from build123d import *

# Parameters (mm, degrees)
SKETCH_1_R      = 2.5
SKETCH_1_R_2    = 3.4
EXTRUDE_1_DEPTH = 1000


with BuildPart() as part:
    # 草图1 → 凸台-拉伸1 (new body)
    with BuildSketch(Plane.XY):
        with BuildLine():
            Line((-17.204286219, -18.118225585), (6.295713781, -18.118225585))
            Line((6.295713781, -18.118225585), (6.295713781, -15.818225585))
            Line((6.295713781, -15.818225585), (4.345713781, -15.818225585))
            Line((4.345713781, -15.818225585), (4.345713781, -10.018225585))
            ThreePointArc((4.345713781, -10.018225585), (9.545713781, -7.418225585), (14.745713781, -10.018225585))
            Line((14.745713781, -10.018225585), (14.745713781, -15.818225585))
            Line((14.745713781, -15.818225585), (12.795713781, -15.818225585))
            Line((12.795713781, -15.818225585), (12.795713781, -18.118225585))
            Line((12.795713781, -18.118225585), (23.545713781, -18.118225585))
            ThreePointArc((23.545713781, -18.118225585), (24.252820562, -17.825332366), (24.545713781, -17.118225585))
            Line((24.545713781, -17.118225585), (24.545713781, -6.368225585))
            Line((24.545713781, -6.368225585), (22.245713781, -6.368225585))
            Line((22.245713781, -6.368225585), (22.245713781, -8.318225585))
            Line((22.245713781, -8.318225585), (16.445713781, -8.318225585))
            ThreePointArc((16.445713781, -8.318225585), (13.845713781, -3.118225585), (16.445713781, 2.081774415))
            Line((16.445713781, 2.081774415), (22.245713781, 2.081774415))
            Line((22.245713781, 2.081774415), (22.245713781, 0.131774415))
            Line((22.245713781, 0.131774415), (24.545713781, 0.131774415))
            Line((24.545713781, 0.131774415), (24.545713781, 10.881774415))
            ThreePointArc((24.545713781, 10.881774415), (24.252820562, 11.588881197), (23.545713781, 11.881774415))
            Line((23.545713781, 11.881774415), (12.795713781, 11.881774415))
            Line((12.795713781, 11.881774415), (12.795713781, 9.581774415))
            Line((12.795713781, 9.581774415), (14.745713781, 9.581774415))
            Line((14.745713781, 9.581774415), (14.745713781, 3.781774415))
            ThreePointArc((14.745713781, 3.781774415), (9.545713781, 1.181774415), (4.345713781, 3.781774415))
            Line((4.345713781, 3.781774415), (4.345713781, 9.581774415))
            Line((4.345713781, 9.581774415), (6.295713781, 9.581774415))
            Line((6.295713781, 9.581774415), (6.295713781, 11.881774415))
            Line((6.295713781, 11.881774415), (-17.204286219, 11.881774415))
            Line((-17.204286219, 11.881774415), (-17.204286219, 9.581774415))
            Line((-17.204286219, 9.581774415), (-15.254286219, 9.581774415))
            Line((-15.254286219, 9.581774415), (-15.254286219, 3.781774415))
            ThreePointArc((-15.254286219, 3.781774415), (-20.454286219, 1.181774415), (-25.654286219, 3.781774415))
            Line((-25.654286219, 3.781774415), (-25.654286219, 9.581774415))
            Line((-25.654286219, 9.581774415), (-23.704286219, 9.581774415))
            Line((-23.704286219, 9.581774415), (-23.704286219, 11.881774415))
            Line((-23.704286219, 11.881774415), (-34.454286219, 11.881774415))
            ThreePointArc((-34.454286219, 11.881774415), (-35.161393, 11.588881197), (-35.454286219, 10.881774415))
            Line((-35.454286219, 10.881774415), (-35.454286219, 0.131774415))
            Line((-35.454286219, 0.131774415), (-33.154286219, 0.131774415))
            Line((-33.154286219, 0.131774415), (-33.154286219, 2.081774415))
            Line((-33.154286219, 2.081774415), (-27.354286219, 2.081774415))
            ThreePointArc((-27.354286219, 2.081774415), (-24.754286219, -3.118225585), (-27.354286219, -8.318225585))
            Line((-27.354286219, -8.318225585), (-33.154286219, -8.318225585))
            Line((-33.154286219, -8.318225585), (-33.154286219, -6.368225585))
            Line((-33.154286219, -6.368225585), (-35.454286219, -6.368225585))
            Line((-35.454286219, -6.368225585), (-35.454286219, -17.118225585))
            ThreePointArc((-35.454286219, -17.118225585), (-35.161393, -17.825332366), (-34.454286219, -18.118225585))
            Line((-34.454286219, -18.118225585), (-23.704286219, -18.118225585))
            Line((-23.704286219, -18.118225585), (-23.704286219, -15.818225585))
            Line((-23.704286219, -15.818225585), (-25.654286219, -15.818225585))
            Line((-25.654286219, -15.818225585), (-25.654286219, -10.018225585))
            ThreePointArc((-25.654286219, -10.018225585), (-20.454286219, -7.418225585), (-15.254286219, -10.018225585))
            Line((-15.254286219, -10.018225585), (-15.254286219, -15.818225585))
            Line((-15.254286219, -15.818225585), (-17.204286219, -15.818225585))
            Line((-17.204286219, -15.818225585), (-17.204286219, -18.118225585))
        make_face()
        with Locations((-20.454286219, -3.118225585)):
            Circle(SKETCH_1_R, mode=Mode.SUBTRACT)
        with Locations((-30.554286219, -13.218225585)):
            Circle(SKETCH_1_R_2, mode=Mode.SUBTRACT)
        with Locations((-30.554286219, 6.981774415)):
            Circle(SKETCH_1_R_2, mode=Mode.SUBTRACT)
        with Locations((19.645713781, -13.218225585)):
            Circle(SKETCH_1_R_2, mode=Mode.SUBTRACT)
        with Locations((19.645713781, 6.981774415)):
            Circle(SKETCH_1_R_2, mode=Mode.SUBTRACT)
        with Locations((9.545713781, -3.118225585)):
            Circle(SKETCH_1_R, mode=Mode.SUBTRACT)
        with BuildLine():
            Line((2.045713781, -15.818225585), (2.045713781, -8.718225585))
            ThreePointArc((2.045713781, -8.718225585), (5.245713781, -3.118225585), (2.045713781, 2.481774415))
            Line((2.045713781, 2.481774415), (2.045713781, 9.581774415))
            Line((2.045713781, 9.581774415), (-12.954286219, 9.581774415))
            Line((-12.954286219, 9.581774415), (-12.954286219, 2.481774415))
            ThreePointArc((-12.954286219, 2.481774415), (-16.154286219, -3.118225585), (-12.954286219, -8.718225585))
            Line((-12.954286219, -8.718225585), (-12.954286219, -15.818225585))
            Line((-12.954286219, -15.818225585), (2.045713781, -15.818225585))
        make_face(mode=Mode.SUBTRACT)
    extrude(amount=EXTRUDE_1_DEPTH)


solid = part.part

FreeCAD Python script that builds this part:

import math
import FreeCAD as App
import Part
import Sketcher
Q = App.Units.Quantity

doc = App.newDocument("Part")
body = doc.addObject("PartDesign::Body", "Body")

# Sketch on XY plane
sketch1 = body.newObject("Sketcher::SketchObject", "Sketch")
sketch1.AttachmentSupport = (doc.getObject("XY_Plane"), [""])
sketch1.MapMode = "FlatFace"
sketch1.addGeometry([
    Part.LineSegment(App.Vector(-17.2, -18.1, 0), App.Vector(6.3, -18.1, 0)),  # 0
    Part.LineSegment(App.Vector(6.3, -18.1, 0), App.Vector(6.3, -15.8, 0)),  # 1
    Part.LineSegment(App.Vector(6.3, -15.8, 0), App.Vector(4.3, -15.8, 0)),  # 2
    Part.LineSegment(App.Vector(4.3, -15.8, 0), App.Vector(4.3, -10, 0)),  # 3
    Part.ArcOfCircle(Part.Circle(App.Vector(9.5, -13.9, 0), App.Vector(0, 0, 1), 6.5), math.radians(37), math.radians(143)),  # 4
    Part.LineSegment(App.Vector(14.7, -10, 0), App.Vector(14.7, -15.8, 0)),  # 5
    Part.LineSegment(App.Vector(14.7, -15.8, 0), App.Vector(12.8, -15.8, 0)),  # 6
    Part.LineSegment(App.Vector(12.8, -15.8, 0), App.Vector(12.8, -18.1, 0)),  # 7
    Part.LineSegment(App.Vector(12.8, -18.1, 0), App.Vector(23.5, -18.1, 0)),  # 8
    Part.ArcOfCircle(Part.Circle(App.Vector(23.5, -17.1, 0), App.Vector(0, 0, 1), 1), math.radians(-90), math.radians(0)),  # 9
    Part.LineSegment(App.Vector(24.5, -17.1, 0), App.Vector(24.5, -6.4, 0)),  # 10
    Part.LineSegment(App.Vector(24.5, -6.4, 0), App.Vector(22.2, -6.4, 0)),  # 11
    Part.LineSegment(App.Vector(22.2, -6.4, 0), App.Vector(22.2, -8.3, 0)),  # 12
    Part.LineSegment(App.Vector(22.2, -8.3, 0), App.Vector(16.4, -8.3, 0)),  # 13
    Part.ArcOfCircle(Part.Circle(App.Vector(20.3, -3.1, 0), App.Vector(0, 0, 1), 6.5), math.radians(127), math.radians(233)),  # 14
    Part.LineSegment(App.Vector(16.4, 2.1, 0), App.Vector(22.2, 2.1, 0)),  # 15
    Part.LineSegment(App.Vector(22.2, 2.1, 0), App.Vector(22.2, 0.1, 0)),  # 16
    Part.LineSegment(App.Vector(22.2, 0.1, 0), App.Vector(24.5, 0.1, 0)),  # 17
    Part.LineSegment(App.Vector(24.5, 0.1, 0), App.Vector(24.5, 10.9, 0)),  # 18
    Part.ArcOfCircle(Part.Circle(App.Vector(23.5, 10.9, 0), App.Vector(0, 0, 1), 1), math.radians(0), math.radians(90)),  # 19
    Part.LineSegment(App.Vector(23.5, 11.9, 0), App.Vector(12.8, 11.9, 0)),  # 20
    Part.LineSegment(App.Vector(12.8, 11.9, 0), App.Vector(12.8, 9.6, 0)),  # 21
    Part.LineSegment(App.Vector(12.8, 9.6, 0), App.Vector(14.7, 9.6, 0)),  # 22
    Part.LineSegment(App.Vector(14.7, 9.6, 0), App.Vector(14.7, 3.8, 0)),  # 23
    Part.ArcOfCircle(Part.Circle(App.Vector(9.5, 7.7, 0), App.Vector(0, 0, 1), 6.5), math.radians(-143), math.radians(-37)),  # 24
    Part.LineSegment(App.Vector(4.3, 3.8, 0), App.Vector(4.3, 9.6, 0)),  # 25
    Part.LineSegment(App.Vector(4.3, 9.6, 0), App.Vector(6.3, 9.6, 0)),  # 26
    Part.LineSegment(App.Vector(6.3, 9.6, 0), App.Vector(6.3, 11.9, 0)),  # 27
    Part.LineSegment(App.Vector(6.3, 11.9, 0), App.Vector(-17.2, 11.9, 0)),  # 28
    Part.LineSegment(App.Vector(-17.2, 11.9, 0), App.Vector(-17.2, 9.6, 0)),  # 29
    Part.LineSegment(App.Vector(-17.2, 9.6, 0), App.Vector(-15.3, 9.6, 0)),  # 30
    Part.LineSegment(App.Vector(-15.3, 9.6, 0), App.Vector(-15.3, 3.8, 0)),  # 31
    Part.ArcOfCircle(Part.Circle(App.Vector(-20.5, 7.7, 0), App.Vector(0, 0, 1), 6.5), math.radians(-143), math.radians(-37)),  # 32
    Part.LineSegment(App.Vector(-25.7, 3.8, 0), App.Vector(-25.7, 9.6, 0)),  # 33
    Part.LineSegment(App.Vector(-25.7, 9.6, 0), App.Vector(-23.7, 9.6, 0)),  # 34
    Part.LineSegment(App.Vector(-23.7, 9.6, 0), App.Vector(-23.7, 11.9, 0)),  # 35
    Part.LineSegment(App.Vector(-23.7, 11.9, 0), App.Vector(-34.5, 11.9, 0)),  # 36
    Part.ArcOfCircle(Part.Circle(App.Vector(-34.5, 10.9, 0), App.Vector(0, 0, 1), 1), math.radians(90), math.radians(180)),  # 37
    Part.LineSegment(App.Vector(-35.5, 10.9, 0), App.Vector(-35.5, 0.1, 0)),  # 38
    Part.LineSegment(App.Vector(-35.5, 0.1, 0), App.Vector(-33.2, 0.1, 0)),  # 39
    Part.LineSegment(App.Vector(-33.2, 0.1, 0), App.Vector(-33.2, 2.1, 0)),  # 40
    Part.LineSegment(App.Vector(-33.2, 2.1, 0), App.Vector(-27.4, 2.1, 0)),  # 41
    Part.ArcOfCircle(Part.Circle(App.Vector(-31.3, -3.1, 0), App.Vector(0, 0, 1), 6.5), math.radians(-53), math.radians(53)),  # 42
    Part.LineSegment(App.Vector(-27.4, -8.3, 0), App.Vector(-33.2, -8.3, 0)),  # 43
    Part.LineSegment(App.Vector(-33.2, -8.3, 0), App.Vector(-33.2, -6.4, 0)),  # 44
    Part.LineSegment(App.Vector(-33.2, -6.4, 0), App.Vector(-35.5, -6.4, 0)),  # 45
    Part.LineSegment(App.Vector(-35.5, -6.4, 0), App.Vector(-35.5, -17.1, 0)),  # 46
    Part.ArcOfCircle(Part.Circle(App.Vector(-34.5, -17.1, 0), App.Vector(0, 0, 1), 1), math.radians(-180), math.radians(-90)),  # 47
    Part.LineSegment(App.Vector(-34.5, -18.1, 0), App.Vector(-23.7, -18.1, 0)),  # 48
    Part.LineSegment(App.Vector(-23.7, -18.1, 0), App.Vector(-23.7, -15.8, 0)),  # 49
    Part.LineSegment(App.Vector(-23.7, -15.8, 0), App.Vector(-25.7, -15.8, 0)),  # 50
    Part.LineSegment(App.Vector(-25.7, -15.8, 0), App.Vector(-25.7, -10, 0)),  # 51
    Part.ArcOfCircle(Part.Circle(App.Vector(-20.5, -13.9, 0), App.Vector(0, 0, 1), 6.5), math.radians(37), math.radians(143)),  # 52
    Part.LineSegment(App.Vector(-15.3, -10, 0), App.Vector(-15.3, -15.8, 0)),  # 53
    Part.LineSegment(App.Vector(-15.3, -15.8, 0), App.Vector(-17.2, -15.8, 0)),  # 54
    Part.LineSegment(App.Vector(-17.2, -15.8, 0), App.Vector(-17.2, -18.1, 0)),  # 55
    Part.Circle(App.Vector(-30.6, -13.2, 0), App.Vector(0, 0, 1), 3.4),  # 56
    Part.Circle(App.Vector(19.6, -13.2, 0), App.Vector(0, 0, 1), 3.4),  # 57
    Part.Circle(App.Vector(-20.5, -3.1, 0), App.Vector(0, 0, 1), 2.5),  # 58
    Part.Circle(App.Vector(-30.6, 7, 0), App.Vector(0, 0, 1), 3.4),  # 59
    Part.LineSegment(App.Vector(2, -8.7, 0), App.Vector(2, -15.8, 0)),  # 60
    Part.LineSegment(App.Vector(2, -15.8, 0), App.Vector(-13, -15.8, 0)),  # 61
    Part.LineSegment(App.Vector(-13, -15.8, 0), App.Vector(-13, -8.7, 0)),  # 62
    Part.ArcOfCircle(Part.Circle(App.Vector(-9.7, -3.1, 0), App.Vector(0, 0, 1), 6.5), math.radians(121), math.radians(239)),  # 63
    Part.LineSegment(App.Vector(-13, 2.5, 0), App.Vector(-13, 9.6, 0)),  # 64
    Part.LineSegment(App.Vector(-13, 9.6, 0), App.Vector(2, 9.6, 0)),  # 65
    Part.LineSegment(App.Vector(2, 9.6, 0), App.Vector(2, 2.5, 0)),  # 66
    Part.ArcOfCircle(Part.Circle(App.Vector(-1.3, -3.1, 0), App.Vector(0, 0, 1), 6.5), math.radians(-59), math.radians(59)),  # 67
    Part.Circle(App.Vector(9.5, -3.1, 0), App.Vector(0, 0, 1), 2.5),  # 68
    Part.Circle(App.Vector(19.6, 7, 0), App.Vector(0, 0, 1), 3.4),  # 69
], False)
sketch1.addConstraint([
    Sketcher.Constraint("Coincident", 0, 2, 1, 1),
    Sketcher.Constraint("Coincident", 1, 2, 2, 1),
    Sketcher.Constraint("Coincident", 2, 2, 3, 1),
    Sketcher.Constraint("Coincident", 3, 2, 4, 2),
    Sketcher.Constraint("Coincident", 4, 1, 5, 1),
    Sketcher.Constraint("Coincident", 5, 2, 6, 1),
    Sketcher.Constraint("Coincident", 6, 2, 7, 1),
    Sketcher.Constraint("Coincident", 7, 2, 8, 1),
    Sketcher.Constraint("Tangent", 8, 2, 9, 1),
    Sketcher.Constraint("Tangent", 9, 2, 10, 1),
    Sketcher.Constraint("Coincident", 10, 2, 11, 1),
    Sketcher.Constraint("Coincident", 11, 2, 12, 1),
    Sketcher.Constraint("Coincident", 12, 2, 13, 1),
    Sketcher.Constraint("Coincident", 13, 2, 14, 2),
    Sketcher.Constraint("Coincident", 14, 1, 15, 1),
    Sketcher.Constraint("Coincident", 15, 2, 16, 1),
    Sketcher.Constraint("Coincident", 16, 2, 17, 1),
    Sketcher.Constraint("Coincident", 17, 2, 18, 1),
    Sketcher.Constraint("Tangent", 18, 2, 19, 1),
    Sketcher.Constraint("Tangent", 19, 2, 20, 1),
    Sketcher.Constraint("Coincident", 20, 2, 21, 1),
    Sketcher.Constraint("Coincident", 21, 2, 22, 1),
    Sketcher.Constraint("Coincident", 22, 2, 23, 1),
    Sketcher.Constraint("Coincident", 23, 2, 24, 2),
    Sketcher.Constraint("Coincident", 24, 1, 25, 1),
    Sketcher.Constraint("Coincident", 25, 2, 26, 1),
    Sketcher.Constraint("Coincident", 26, 2, 27, 1),
    Sketcher.Constraint("Coincident", 27, 2, 28, 1),
    Sketcher.Constraint("Coincident", 28, 2, 29, 1),
    Sketcher.Constraint("Coincident", 29, 2, 30, 1),
    Sketcher.Constraint("Coincident", 30, 2, 31, 1),
    Sketcher.Constraint("Coincident", 31, 2, 32, 2),
    Sketcher.Constraint("Coincident", 32, 1, 33, 1),
    Sketcher.Constraint("Coincident", 33, 2, 34, 1),
    Sketcher.Constraint("Coincident", 34, 2, 35, 1),
    Sketcher.Constraint("Coincident", 35, 2, 36, 1),
    Sketcher.Constraint("Tangent", 36, 2, 37, 1),
    Sketcher.Constraint("Tangent", 37, 2, 38, 1),
    Sketcher.Constraint("Coincident", 38, 2, 39, 1),
    Sketcher.Constraint("Coincident", 39, 2, 40, 1),
    Sketcher.Constraint("Coincident", 40, 2, 41, 1),
    Sketcher.Constraint("Coincident", 41, 2, 42, 2),
    Sketcher.Constraint("Coincident", 42, 1, 43, 1),
    Sketcher.Constraint("Coincident", 43, 2, 44, 1),
    Sketcher.Constraint("Coincident", 44, 2, 45, 1),
    Sketcher.Constraint("Coincident", 45, 2, 46, 1),
    Sketcher.Constraint("Tangent", 46, 2, 47, 1),
    Sketcher.Constraint("Tangent", 47, 2, 48, 1),
    Sketcher.Constraint("Coincident", 48, 2, 49, 1),
    Sketcher.Constraint("Coincident", 49, 2, 50, 1),
    Sketcher.Constraint("Coincident", 50, 2, 51, 1),
    Sketcher.Constraint("Coincident", 51, 2, 52, 2),
    Sketcher.Constraint("Coincident", 52, 1, 53, 1),
    Sketcher.Constraint("Coincident", 53, 2, 54, 1),
    Sketcher.Constraint("Coincident", 54, 2, 55, 1),
    Sketcher.Constraint("Coincident", 55, 2, 0, 1),
    Sketcher.Constraint("Coincident", 60, 2, 61, 1),
    Sketcher.Constraint("Coincident", 61, 2, 62, 1),
    Sketcher.Constraint("Coincident", 62, 2, 63, 2),
    Sketcher.Constraint("Coincident", 63, 1, 64, 1),
    Sketcher.Constraint("Coincident", 64, 2, 65, 1),
    Sketcher.Constraint("Coincident", 65, 2, 66, 1),
    Sketcher.Constraint("Coincident", 66, 2, 67, 2),
    Sketcher.Constraint("Coincident", 67, 1, 60, 1),
    Sketcher.Constraint("Horizontal", 0),
    Sketcher.Constraint("Vertical", 1),
    Sketcher.Constraint("Horizontal", 2),
    Sketcher.Constraint("Vertical", 3),
    Sketcher.Constraint("Vertical", 5),
    Sketcher.Constraint("Horizontal", 6),
    Sketcher.Constraint("Vertical", 7),
    Sketcher.Constraint("Horizontal", 8),
    Sketcher.Constraint("Vertical", 10),
    Sketcher.Constraint("Horizontal", 11),
    Sketcher.Constraint("Vertical", 12),
    Sketcher.Constraint("Horizontal", 13),
    Sketcher.Constraint("Horizontal", 15),
    Sketcher.Constraint("Vertical", 16),
    Sketcher.Constraint("Horizontal", 17),
    Sketcher.Constraint("Vertical", 18),
    Sketcher.Constraint("Horizontal", 20),
    Sketcher.Constraint("Vertical", 21),
    Sketcher.Constraint("Horizontal", 22),
    Sketcher.Constraint("Vertical", 23),
    Sketcher.Constraint("Vertical", 25),
    Sketcher.Constraint("Horizontal", 26),
    Sketcher.Constraint("Vertical", 27),
    Sketcher.Constraint("Horizontal", 28),
    Sketcher.Constraint("Vertical", 29),
    Sketcher.Constraint("Horizontal", 30),
    Sketcher.Constraint("Vertical", 31),
    Sketcher.Constraint("Vertical", 33),
    Sketcher.Constraint("Horizontal", 34),
    Sketcher.Constraint("Vertical", 35),
    Sketcher.Constraint("Horizontal", 36),
    Sketcher.Constraint("Vertical", 38),
    Sketcher.Constraint("Horizontal", 39),
    Sketcher.Constraint("Vertical", 40),
    Sketcher.Constraint("Horizontal", 41),
    Sketcher.Constraint("Horizontal", 43),
    Sketcher.Constraint("Vertical", 44),
    Sketcher.Constraint("Horizontal", 45),
    Sketcher.Constraint("Vertical", 46),
    Sketcher.Constraint("Horizontal", 48),
    Sketcher.Constraint("Vertical", 49),
    Sketcher.Constraint("Horizontal", 50),
    Sketcher.Constraint("Vertical", 51),
    Sketcher.Constraint("Vertical", 53),
    Sketcher.Constraint("Horizontal", 54),
    Sketcher.Constraint("Vertical", 55),
    Sketcher.Constraint("Vertical", 60),
    Sketcher.Constraint("Horizontal", 61),
    Sketcher.Constraint("Vertical", 62),
    Sketcher.Constraint("Vertical", 64),
    Sketcher.Constraint("Horizontal", 65),
    Sketcher.Constraint("Vertical", 66),
    Sketcher.Constraint("Equal", 4, 14),
    Sketcher.Constraint("Equal", 9, 19),
    Sketcher.Constraint("Equal", 14, 24),
    Sketcher.Constraint("Equal", 24, 32),
    Sketcher.Constraint("Equal", 19, 37),
    Sketcher.Constraint("Equal", 32, 42),
    Sketcher.Constraint("Equal", 37, 47),
    Sketcher.Constraint("Equal", 42, 52),
    Sketcher.Constraint("Equal", 56, 57),
    Sketcher.Constraint("Equal", 57, 59),
    Sketcher.Constraint("Equal", 52, 63),
    Sketcher.Constraint("Equal", 63, 67),
    Sketcher.Constraint("Equal", 58, 68),
    Sketcher.Constraint("Equal", 59, 69),
    Sketcher.Constraint("Horizontal", 24, 3, 32, 3),
    Sketcher.Constraint("Horizontal", 19, 3, 37, 3),
    Sketcher.Constraint("Horizontal", 14, 3, 42, 3),
    Sketcher.Constraint("Horizontal", 9, 3, 47, 3),
    Sketcher.Constraint("Horizontal", 4, 3, 52, 3),
    Sketcher.Constraint("Horizontal", 56, 3, 57, 3),
    Sketcher.Constraint("Horizontal", 42, 3, 58, 3),
    Sketcher.Constraint("Horizontal", 58, 3, 63, 3),
    Sketcher.Constraint("Horizontal", 63, 3, 67, 3),
    Sketcher.Constraint("Horizontal", 67, 3, 68, 3),
    Sketcher.Constraint("Horizontal", 59, 3, 69, 3),
    Sketcher.Constraint("Horizontal", 3, 2, 4, 1),
    Sketcher.Constraint("Horizontal", 2, 2, 5, 2),
    Sketcher.Constraint("Horizontal", 0, 2, 7, 2),
    Sketcher.Constraint("Horizontal", 23, 2, 24, 1),
    Sketcher.Constraint("Horizontal", 22, 2, 25, 2),
    Sketcher.Constraint("Horizontal", 20, 2, 27, 2),
    Sketcher.Constraint("Horizontal", 26, 2, 29, 2),
    Sketcher.Constraint("Horizontal", 24, 1, 31, 2),
    Sketcher.Constraint("Horizontal", 31, 2, 32, 1),
    Sketcher.Constraint("Horizontal", 30, 2, 33, 2),
    Sketcher.Constraint("Horizontal", 17, 2, 38, 2),
    Sketcher.Constraint("Horizontal", 15, 2, 40, 2),
    Sketcher.Constraint("Horizontal", 13, 2, 42, 1),
    Sketcher.Constraint("Horizontal", 11, 2, 44, 2),
    Sketcher.Constraint("Horizontal", 6, 2, 49, 2),
    Sketcher.Constraint("Horizontal", 4, 1, 51, 2),
    Sketcher.Constraint("Horizontal", 51, 2, 52, 1),
    Sketcher.Constraint("Horizontal", 50, 2, 53, 2),
    Sketcher.Constraint("Horizontal", 54, 2, 60, 2),
    Sketcher.Constraint("Horizontal", 34, 2, 64, 2),
    Sketcher.Constraint("Horizontal", 63, 1, 66, 2),
    Sketcher.Constraint("Horizontal", 62, 2, 67, 1),
    Sketcher.Constraint("Vertical", 9, 3, 19, 3),
    Sketcher.Constraint("Vertical", 4, 3, 24, 3),
    Sketcher.Constraint("Vertical", 37, 3, 47, 3),
    Sketcher.Constraint("Vertical", 32, 3, 52, 3),
    Sketcher.Constraint("Vertical", 52, 3, 58, 3),
    Sketcher.Constraint("Vertical", 56, 3, 59, 3),
    Sketcher.Constraint("Vertical", 24, 3, 68, 3),
    Sketcher.Constraint("Vertical", 57, 3, 69, 3),
    Sketcher.Constraint("Vertical", 13, 2, 14, 1),
    Sketcher.Constraint("Vertical", 12, 2, 15, 2),
    Sketcher.Constraint("Vertical", 7, 2, 20, 2),
    Sketcher.Constraint("Vertical", 5, 2, 22, 2),
    Sketcher.Constraint("Vertical", 1, 2, 26, 2),
    Sketcher.Constraint("Vertical", 40, 2, 43, 2),
    Sketcher.Constraint("Vertical", 35, 2, 48, 2),
    Sketcher.Constraint("Vertical", 29, 2, 54, 2),
    Sketcher.Constraint("Vertical", 62, 2, 63, 1),
    Sketcher.Constraint("Equal", 2, 6),
    Sketcher.Constraint("Equal", 26, 30),
    Sketcher.Constraint("Equal", 30, 34),
    Sketcher.Constraint("Equal", 20, 36),
    Sketcher.Constraint("Equal", 17, 39),
    Sketcher.Constraint("Equal", 15, 41),
    Sketcher.Constraint("Equal", 45, 1),
    Sketcher.Constraint("Equal", 43, 3),
    Sketcher.Constraint("Equal", 48, 10),
    Sketcher.Constraint("Equal", 54, 12),
    Sketcher.Constraint("Equal", 12, 16),
    Sketcher.Constraint("Equal", 10, 18),
    Sketcher.Constraint("Equal", 7, 21),
    Sketcher.Constraint("Equal", 5, 23),
    Sketcher.Constraint("Diameter", 58, Q("5 mm")),
    Sketcher.Constraint("Radius", 9, Q("1 mm")),
    Sketcher.Constraint("Diameter", 56, Q("6.8 mm")),
    Sketcher.Constraint("Radius", 4, Q("6.5 mm")),
    Sketcher.Constraint("DistanceX", 61, 2, 61, 1, Q("15 mm")),
    Sketcher.Constraint("DistanceX", 0, 1, 0, 2, Q("23.5 mm")),
    Sketcher.Constraint("DistanceX", 11, 2, 11, 1, Q("2.3 mm")),
    Sketcher.Constraint("DistanceX", 13, 2, 13, 1, Q("5.8 mm")),
    Sketcher.Constraint("DistanceY", 60, 2, 60, 1, Q("7.1 mm")),
    Sketcher.Constraint("DistanceX", 2, 2, 2, 1, Q("1.95 mm")),
    Sketcher.Constraint("DistanceX", 8, 1, 8, 2, Q("10.75 mm")),
    Sketcher.Constraint("DistanceX", -1, 1, 4, 3, Q("9.545714 mm")),
    Sketcher.Constraint("DistanceY", 4, 3, -1, 1, Q("13.918226 mm")),
    Sketcher.Constraint("DistanceX", -1, 1, 9, 3, Q("23.545714 mm")),
    Sketcher.Constraint("DistanceX", -1, 1, 14, 3, Q("20.345714 mm")),
    Sketcher.Constraint("DistanceX", 56, 3, -1, 1, Q("30.554286 mm")),
    Sketcher.Constraint("DistanceY", 56, 3, -1, 1, Q("13.218226 mm")),
    Sketcher.Constraint("DistanceX", -1, 1, 57, 3, Q("19.645714 mm")),
    Sketcher.Constraint("DistanceY", -1, 1, 59, 3, Q("6.981774 mm")),
    Sketcher.Constraint("DistanceX", 63, 3, -1, 1, Q("9.654286 mm")),
])
pad1 = body.newObject("PartDesign::Pad", "Pad")
pad1.Profile = sketch1
pad1.Length = 1000

doc.recompute()
